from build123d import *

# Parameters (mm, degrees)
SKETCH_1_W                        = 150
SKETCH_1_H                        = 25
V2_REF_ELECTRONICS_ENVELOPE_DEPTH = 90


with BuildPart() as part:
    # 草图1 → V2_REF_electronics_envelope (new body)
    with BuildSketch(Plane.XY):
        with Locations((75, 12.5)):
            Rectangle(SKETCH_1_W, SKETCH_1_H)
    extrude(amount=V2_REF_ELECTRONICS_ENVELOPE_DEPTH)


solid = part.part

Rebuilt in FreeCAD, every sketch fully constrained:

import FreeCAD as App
import Part
import Sketcher

V = App.Vector
Q = App.Units.Quantity


def add_polygon(sketch, points):
    """Adds a closed chain of lines whose ends are joined by coincident constraints."""
    first, n = sketch.GeometryCount, len(points)
    for a, b in zip(points, points[1:] + points[:1]):
        sketch.addGeometry(Part.LineSegment(App.Vector(*a, 0), App.Vector(*b, 0)), False)
    for i in range(n):
        sketch.addConstraint(Sketcher.Constraint("Coincident", first + i, 2, first + (i + 1) % n, 1))

doc = App.newDocument("Part")
body = doc.addObject("PartDesign::Body", "Body")

# Sketch on XY plane
sketch1 = body.newObject("Sketcher::SketchObject", "Sketch")
sketch1.AttachmentSupport = (doc.getObject("XY_Plane"), [""])
sketch1.MapMode = "FlatFace"
add_polygon(sketch1, [(0, 25), (0, 0), (150, 0), (150, 25)])  # lines 0-3
sketch1.addConstraint(Sketcher.Constraint("Vertical", 0))
sketch1.addConstraint(Sketcher.Constraint("Horizontal", 1))
sketch1.addConstraint(Sketcher.Constraint("Vertical", 2))
sketch1.addConstraint(Sketcher.Constraint("Horizontal", 3))
sketch1.addConstraint(Sketcher.Constraint("Coincident", 0, 2, -1, 1))
sketch1.addConstraint(Sketcher.Constraint("DistanceX", 1, 1, 1, 2, Q("150 mm")))
sketch1.addConstraint(Sketcher.Constraint("DistanceY", 0, 2, 0, 1, Q("25 mm")))
pad1 = body.newObject("PartDesign::Pad", "Pad")
pad1.Profile = sketch1
pad1.Length = 90

doc.recompute()
